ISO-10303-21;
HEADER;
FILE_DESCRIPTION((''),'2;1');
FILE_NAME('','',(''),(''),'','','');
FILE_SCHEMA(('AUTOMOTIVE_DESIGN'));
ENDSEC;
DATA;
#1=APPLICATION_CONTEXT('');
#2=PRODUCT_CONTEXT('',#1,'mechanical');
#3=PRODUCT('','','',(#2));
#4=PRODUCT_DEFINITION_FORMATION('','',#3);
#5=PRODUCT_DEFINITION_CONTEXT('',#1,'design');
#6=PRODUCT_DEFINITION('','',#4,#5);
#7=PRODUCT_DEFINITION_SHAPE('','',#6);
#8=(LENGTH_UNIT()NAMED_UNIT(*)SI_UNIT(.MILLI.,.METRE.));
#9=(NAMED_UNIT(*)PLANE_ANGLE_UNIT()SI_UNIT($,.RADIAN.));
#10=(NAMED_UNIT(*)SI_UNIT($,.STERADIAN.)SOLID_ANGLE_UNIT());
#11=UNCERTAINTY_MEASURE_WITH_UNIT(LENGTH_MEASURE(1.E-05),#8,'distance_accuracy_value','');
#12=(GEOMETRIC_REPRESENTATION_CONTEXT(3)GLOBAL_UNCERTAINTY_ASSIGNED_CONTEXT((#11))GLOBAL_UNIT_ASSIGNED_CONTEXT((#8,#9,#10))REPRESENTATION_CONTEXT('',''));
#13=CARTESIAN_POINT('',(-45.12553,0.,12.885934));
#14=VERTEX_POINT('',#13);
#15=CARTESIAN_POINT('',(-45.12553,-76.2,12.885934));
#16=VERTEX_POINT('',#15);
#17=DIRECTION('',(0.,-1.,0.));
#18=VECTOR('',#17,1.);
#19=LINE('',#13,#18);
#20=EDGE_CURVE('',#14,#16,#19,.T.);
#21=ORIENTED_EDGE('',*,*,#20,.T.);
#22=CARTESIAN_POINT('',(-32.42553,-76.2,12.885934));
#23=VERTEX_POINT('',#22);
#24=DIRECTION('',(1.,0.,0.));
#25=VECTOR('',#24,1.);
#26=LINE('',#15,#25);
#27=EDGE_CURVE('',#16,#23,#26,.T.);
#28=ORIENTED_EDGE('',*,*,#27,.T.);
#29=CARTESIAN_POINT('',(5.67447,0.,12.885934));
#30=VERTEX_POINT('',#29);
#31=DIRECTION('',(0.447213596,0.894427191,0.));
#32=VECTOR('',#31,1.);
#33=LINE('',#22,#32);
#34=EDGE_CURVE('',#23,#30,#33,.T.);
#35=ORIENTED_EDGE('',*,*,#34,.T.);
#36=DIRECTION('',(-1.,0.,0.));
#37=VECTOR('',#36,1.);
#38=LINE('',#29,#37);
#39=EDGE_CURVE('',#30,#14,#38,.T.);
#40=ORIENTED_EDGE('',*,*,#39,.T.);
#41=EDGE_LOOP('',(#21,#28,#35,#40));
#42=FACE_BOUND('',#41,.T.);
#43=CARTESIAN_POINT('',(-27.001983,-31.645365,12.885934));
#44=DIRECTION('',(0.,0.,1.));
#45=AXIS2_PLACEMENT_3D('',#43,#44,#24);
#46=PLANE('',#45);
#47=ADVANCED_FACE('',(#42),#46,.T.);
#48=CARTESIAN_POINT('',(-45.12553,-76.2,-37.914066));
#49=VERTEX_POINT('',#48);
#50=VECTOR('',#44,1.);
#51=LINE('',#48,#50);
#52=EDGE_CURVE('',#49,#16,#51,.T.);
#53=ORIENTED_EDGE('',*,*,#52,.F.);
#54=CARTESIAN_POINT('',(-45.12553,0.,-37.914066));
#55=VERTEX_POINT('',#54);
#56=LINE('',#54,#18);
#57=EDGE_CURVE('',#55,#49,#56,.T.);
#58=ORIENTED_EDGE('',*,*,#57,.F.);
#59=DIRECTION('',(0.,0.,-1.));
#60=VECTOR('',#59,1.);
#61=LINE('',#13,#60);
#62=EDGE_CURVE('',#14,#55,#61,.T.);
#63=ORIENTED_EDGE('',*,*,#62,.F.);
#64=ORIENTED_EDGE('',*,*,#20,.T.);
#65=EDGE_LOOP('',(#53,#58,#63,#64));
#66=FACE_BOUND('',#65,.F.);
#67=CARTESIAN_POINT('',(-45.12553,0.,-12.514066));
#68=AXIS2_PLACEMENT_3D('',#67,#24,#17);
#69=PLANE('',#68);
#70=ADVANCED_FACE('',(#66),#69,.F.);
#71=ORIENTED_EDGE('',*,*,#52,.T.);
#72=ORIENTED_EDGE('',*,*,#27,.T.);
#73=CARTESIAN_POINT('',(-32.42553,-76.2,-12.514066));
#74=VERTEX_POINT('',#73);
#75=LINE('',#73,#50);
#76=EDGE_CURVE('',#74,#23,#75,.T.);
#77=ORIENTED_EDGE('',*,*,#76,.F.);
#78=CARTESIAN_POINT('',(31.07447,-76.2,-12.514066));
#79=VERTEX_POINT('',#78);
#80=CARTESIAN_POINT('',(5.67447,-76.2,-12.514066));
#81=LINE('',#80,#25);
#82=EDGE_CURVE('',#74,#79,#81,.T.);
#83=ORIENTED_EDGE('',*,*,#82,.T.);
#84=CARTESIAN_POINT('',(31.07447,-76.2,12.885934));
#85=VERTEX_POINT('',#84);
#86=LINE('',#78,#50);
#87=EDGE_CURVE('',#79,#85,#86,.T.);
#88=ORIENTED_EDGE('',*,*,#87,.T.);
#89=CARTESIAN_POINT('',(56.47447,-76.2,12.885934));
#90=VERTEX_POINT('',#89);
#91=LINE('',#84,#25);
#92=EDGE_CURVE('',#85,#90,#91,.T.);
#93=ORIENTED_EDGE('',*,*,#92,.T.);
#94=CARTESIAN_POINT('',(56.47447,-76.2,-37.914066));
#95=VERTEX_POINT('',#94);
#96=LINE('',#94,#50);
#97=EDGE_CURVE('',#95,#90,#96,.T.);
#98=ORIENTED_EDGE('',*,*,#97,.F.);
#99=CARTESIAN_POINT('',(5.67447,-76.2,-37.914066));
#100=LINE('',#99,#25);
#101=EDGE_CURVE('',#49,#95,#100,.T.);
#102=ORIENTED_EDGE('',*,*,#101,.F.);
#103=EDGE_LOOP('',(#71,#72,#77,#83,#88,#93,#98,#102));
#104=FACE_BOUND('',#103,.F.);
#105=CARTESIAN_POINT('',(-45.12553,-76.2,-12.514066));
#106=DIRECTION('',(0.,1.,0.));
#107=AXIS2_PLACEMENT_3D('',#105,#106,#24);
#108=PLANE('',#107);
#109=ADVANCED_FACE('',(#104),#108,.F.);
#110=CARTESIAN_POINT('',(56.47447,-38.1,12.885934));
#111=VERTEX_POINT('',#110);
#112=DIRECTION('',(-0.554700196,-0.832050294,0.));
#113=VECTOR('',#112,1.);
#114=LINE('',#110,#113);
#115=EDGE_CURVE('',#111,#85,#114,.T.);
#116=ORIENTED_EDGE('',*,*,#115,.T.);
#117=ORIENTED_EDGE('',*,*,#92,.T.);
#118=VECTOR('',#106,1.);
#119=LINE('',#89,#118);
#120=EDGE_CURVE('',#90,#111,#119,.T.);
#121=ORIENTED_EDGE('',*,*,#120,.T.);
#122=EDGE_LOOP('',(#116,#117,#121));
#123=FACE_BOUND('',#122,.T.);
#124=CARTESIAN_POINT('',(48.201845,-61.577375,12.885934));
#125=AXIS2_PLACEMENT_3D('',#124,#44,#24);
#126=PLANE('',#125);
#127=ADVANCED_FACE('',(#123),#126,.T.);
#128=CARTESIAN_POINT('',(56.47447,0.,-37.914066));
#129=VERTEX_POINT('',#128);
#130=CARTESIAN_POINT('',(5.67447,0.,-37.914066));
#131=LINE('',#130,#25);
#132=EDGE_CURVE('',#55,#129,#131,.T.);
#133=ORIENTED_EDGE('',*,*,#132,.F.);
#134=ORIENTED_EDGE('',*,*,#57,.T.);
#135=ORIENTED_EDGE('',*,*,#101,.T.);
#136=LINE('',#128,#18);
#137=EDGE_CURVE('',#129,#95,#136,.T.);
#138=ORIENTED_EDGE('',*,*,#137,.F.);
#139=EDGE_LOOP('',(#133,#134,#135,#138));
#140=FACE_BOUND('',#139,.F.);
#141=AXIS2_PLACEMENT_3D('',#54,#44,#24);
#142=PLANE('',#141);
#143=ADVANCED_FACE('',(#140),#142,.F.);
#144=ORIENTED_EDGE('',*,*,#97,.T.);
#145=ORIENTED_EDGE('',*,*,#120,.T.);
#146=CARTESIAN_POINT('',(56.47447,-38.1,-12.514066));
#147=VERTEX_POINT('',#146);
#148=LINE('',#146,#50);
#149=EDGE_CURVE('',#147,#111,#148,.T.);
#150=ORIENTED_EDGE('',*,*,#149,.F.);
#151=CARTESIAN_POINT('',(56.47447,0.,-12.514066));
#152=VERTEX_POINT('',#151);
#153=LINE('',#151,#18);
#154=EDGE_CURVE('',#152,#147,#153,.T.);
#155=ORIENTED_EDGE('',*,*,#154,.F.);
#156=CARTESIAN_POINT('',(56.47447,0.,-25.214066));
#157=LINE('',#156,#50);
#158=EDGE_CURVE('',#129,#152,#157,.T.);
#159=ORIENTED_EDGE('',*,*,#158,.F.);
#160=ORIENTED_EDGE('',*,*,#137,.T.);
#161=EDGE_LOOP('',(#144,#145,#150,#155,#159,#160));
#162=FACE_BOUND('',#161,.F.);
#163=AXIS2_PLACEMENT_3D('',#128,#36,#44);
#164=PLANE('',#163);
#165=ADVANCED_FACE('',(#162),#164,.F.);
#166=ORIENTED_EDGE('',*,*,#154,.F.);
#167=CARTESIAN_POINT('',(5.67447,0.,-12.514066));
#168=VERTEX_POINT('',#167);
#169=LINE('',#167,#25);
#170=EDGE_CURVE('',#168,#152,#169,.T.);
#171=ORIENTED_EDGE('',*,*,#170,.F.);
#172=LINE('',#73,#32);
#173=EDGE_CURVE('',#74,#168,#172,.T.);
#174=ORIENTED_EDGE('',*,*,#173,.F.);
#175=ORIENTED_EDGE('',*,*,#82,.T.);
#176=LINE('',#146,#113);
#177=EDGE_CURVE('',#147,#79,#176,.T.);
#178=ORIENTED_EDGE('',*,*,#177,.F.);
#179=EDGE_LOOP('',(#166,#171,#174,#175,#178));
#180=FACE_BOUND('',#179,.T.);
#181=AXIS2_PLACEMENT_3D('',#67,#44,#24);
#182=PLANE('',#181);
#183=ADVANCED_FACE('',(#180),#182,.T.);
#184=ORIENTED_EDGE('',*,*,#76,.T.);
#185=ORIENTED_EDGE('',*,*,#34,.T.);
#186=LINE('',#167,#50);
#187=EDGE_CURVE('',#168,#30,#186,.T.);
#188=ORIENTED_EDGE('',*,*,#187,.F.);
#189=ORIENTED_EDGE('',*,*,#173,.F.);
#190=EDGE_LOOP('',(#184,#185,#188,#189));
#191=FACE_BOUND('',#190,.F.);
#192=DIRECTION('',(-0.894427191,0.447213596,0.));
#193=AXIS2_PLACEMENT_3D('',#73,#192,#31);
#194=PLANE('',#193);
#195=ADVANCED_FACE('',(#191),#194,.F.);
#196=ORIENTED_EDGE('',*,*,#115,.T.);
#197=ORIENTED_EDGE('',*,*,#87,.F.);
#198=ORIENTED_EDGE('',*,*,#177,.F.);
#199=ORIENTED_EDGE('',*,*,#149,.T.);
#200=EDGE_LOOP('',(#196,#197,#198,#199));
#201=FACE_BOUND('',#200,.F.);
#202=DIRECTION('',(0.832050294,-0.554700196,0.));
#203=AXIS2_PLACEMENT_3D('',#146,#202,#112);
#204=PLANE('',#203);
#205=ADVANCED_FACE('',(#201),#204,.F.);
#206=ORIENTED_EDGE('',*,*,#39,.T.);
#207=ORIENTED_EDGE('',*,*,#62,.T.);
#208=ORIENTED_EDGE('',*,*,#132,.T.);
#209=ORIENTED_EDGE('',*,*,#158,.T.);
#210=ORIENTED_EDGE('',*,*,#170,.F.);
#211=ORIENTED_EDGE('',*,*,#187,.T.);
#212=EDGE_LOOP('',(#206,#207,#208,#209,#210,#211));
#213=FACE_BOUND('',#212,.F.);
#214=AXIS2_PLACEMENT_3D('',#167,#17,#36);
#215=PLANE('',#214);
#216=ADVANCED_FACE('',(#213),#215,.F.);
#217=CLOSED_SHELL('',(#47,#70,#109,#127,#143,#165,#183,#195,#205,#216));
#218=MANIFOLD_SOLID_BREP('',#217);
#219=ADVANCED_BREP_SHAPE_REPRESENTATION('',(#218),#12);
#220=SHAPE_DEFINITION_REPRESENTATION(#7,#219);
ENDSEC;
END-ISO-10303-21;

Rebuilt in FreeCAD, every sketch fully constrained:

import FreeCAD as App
import Part
import Sketcher

V = App.Vector
Q = App.Units.Quantity


def add_polygon(sketch, points):
    """Adds a closed chain of lines whose ends are joined by coincident constraints."""
    first, n = sketch.GeometryCount, len(points)
    for a, b in zip(points, points[1:] + points[:1]):
        sketch.addGeometry(Part.LineSegment(App.Vector(*a, 0), App.Vector(*b, 0)), False)
    for i in range(n):
        sketch.addConstraint(Sketcher.Constraint("Coincident", first + i, 2, first + (i + 1) % n, 1))

doc = App.newDocument("Part")
params = doc.addObject("Spreadsheet::Sheet", "Params")
for row, (alias, value) in enumerate([
    ("sketch1_width", "4 in"),
    ("sketch1_height", "1 in"),
    ("pad1_length", "3 in"),
    ("sketch2_width", "2 in"),
    ("sketch2_width2", "1 in"),
    ("sketch2_height", "3 in"),
    ("sketch2_width3", "0.5 in"),
    ("sketch2_height2", "1.5 in"),
    ("pad2_length", "1 in"),
], start=1):
    params.set(f"A{row}", alias)
    params.set(f"B{row}", "=" + value)
    params.setAlias(f"B{row}", alias)

body = doc.addObject("PartDesign::Body", "Body")

# Sketch on XZ plane
sketch1 = body.newObject("Sketcher::SketchObject", "Sketch")
sketch1.AttachmentSupport = (doc.getObject("XZ_Plane"), [""])
sketch1.MapMode = "FlatFace"
add_polygon(sketch1, [(-45.12553, -12.514066), (-45.12553, -37.914066), (56.47447, -37.914066), (56.47447, -12.514066)])  # lines 0-3
sketch1.addConstraint([
    Sketcher.Constraint("Vertical", 0),
    Sketcher.Constraint("Horizontal", 1),
    Sketcher.Constraint("Vertical", 2),
    Sketcher.Constraint("Horizontal", 3),
    Sketcher.Constraint("DistanceX", 1, 1, 1, 2, Q("4 in")),
    Sketcher.Constraint("DistanceY", 0, 2, 0, 1, Q("1 in")),
    Sketcher.Constraint("DistanceX", 0, 2, -1, 1, 45.12553),
    Sketcher.Constraint("DistanceY", 0, 2, -1, 1, 37.914066),
])
sketch1.setExpression("Constraints[8]", "Params.sketch1_width")
sketch1.setExpression("Constraints[9]", "Params.sketch1_height")
pad1 = body.newObject("PartDesign::Pad", "Pad")
pad1.Profile = sketch1
pad1.setExpression("Length", "Params.pad1_length")

# Sketch on XY plane
sketch2 = body.newObject("Sketcher::SketchObject", "Sketch001")
sketch2.AttachmentSupport = (doc.getObject("XY_Plane"), [""])
sketch2.MapMode = "FlatFace"
sketch2.AttachmentOffset = App.Placement(V(0, 0, -12.514066), App.Rotation())
add_polygon(sketch2, [(-45.12553, 0), (-45.12553, -76.2), (-32.42553, -76.2), (5.67447, 0)])  # lines 0-3
add_polygon(sketch2, [(56.47447, -76.2), (56.47447, -38.1), (31.07447, -76.2)])  # lines 4-6
sketch2.addConstraint([
    Sketcher.Constraint("Vertical", 0),
    Sketcher.Constraint("Horizontal", 1),
    Sketcher.Constraint("Horizontal", 3),
    Sketcher.Constraint("Vertical", 4),
    Sketcher.Constraint("Horizontal", 6),
    Sketcher.Constraint("PointOnObject", 2, 2, -1),
    Sketcher.Constraint("Horizontal", 1, 2, 5, 2),
    Sketcher.Constraint("DistanceX", 3, 2, 3, 1, Q("2 in")),
    Sketcher.Constraint("DistanceX", 6, 1, 6, 2, Q("1 in")),
    Sketcher.Constraint("DistanceY", 0, 2, 0, 1, Q("3 in")),
    Sketcher.Constraint("DistanceX", 1, 1, 1, 2, Q("0.5 in")),
    Sketcher.Constraint("DistanceY", 4, 1, 4, 2, Q("1.5 in")),
    Sketcher.Constraint("DistanceX", 2, 2, 4, 2, Q("2 in")),
    Sketcher.Constraint("DistanceX", 0, 2, -1, 1, 45.12553),
])
sketch2.setExpression("Constraints[14]", "Params.sketch2_width")
sketch2.setExpression("Constraints[15]", "Params.sketch2_width2")
sketch2.setExpression("Constraints[16]", "Params.sketch2_height")
sketch2.setExpression("Constraints[17]", "Params.sketch2_width3")
sketch2.setExpression("Constraints[18]", "Params.sketch2_height2")
pad2 = body.newObject("PartDesign::Pad", "Pad001")
pad2.Profile = sketch2
pad2.setExpression("Length", "Params.pad2_length")

doc.recompute()
